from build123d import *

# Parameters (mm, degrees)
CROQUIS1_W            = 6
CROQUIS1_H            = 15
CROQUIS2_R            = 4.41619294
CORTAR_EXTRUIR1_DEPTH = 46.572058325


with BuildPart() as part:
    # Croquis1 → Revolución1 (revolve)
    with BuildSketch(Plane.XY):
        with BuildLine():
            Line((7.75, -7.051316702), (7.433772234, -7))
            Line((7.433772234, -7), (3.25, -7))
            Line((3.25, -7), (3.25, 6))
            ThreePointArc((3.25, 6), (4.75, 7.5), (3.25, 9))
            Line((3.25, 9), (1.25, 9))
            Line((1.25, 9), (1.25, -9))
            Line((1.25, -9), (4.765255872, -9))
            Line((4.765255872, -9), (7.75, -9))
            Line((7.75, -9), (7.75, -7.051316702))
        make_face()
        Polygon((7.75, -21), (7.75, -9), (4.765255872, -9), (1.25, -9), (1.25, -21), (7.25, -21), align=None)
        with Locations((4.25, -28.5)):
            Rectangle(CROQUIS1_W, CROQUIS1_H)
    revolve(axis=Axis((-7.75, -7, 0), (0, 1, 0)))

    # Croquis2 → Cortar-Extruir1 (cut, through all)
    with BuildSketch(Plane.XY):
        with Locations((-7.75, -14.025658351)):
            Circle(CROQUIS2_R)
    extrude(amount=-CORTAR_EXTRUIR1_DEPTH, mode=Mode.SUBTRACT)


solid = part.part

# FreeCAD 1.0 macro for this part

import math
import FreeCAD as App
import Part
import Sketcher
Q = App.Units.Quantity

doc = App.newDocument("Part")
body = doc.addObject("PartDesign::Body", "Body")

# Sketch on XY plane
sketch1 = body.newObject("Sketcher::SketchObject", "Sketch")
sketch1.AttachmentSupport = (doc.getObject("XY_Plane"), [""])
sketch1.MapMode = "FlatFace"
sketch1.addGeometry([
    Part.LineSegment(App.Vector(7.75, -7.05, 0), App.Vector(7.43, -7, 0)),  # 0
    Part.LineSegment(App.Vector(7.43, -7, 0), App.Vector(3.25, -7, 0)),  # 1
    Part.LineSegment(App.Vector(3.25, -7, 0), App.Vector(3.25, 6, 0)),  # 2
    Part.ArcOfCircle(Part.Circle(App.Vector(3.25, 7.5, 0), App.Vector(0, 0, 1), 1.5), math.radians(-90), math.radians(90)),  # 3
    Part.LineSegment(App.Vector(3.25, 9, 0), App.Vector(1.25, 9, 0)),  # 4
    Part.LineSegment(App.Vector(1.25, 9, 0), App.Vector(1.25, -36, 0)),  # 5
    Part.LineSegment(App.Vector(1.25, -36, 0), App.Vector(7.25, -36, 0)),  # 6
    Part.LineSegment(App.Vector(7.25, -36, 0), App.Vector(7.25, -21, 0)),  # 7
    Part.LineSegment(App.Vector(7.25, -21, 0), App.Vector(7.75, -21, 0)),  # 8
    Part.LineSegment(App.Vector(7.75, -21, 0), App.Vector(7.75, -7.05, 0)),  # 9
], False)
sketch1.addGeometry(Part.LineSegment(App.Vector(-7.75, -36, 0), App.Vector(-7.75, 9, 0)), True)  # axis
sketch1.addConstraint([
    Sketcher.Constraint("Coincident", 0, 2, 1, 1),
    Sketcher.Constraint("Coincident", 1, 2, 2, 1),
    Sketcher.Constraint("Coincident", 2, 2, 3, 1),
    Sketcher.Constraint("Tangent", 3, 2, 4, 1),
    Sketcher.Constraint("Coincident", 4, 2, 5, 1),
    Sketcher.Constraint("Coincident", 5, 2, 6, 1),
    Sketcher.Constraint("Coincident", 6, 2, 7, 1),
    Sketcher.Constraint("Coincident", 7, 2, 8, 1),
    Sketcher.Constraint("Coincident", 8, 2, 9, 1),
    Sketcher.Constraint("Coincident", 9, 2, 0, 1),
    Sketcher.Constraint("Horizontal", 1),
    Sketcher.Constraint("Vertical", 2),
    Sketcher.Constraint("Horizontal", 4),
    Sketcher.Constraint("Vertical", 5),
    Sketcher.Constraint("Horizontal", 6),
    Sketcher.Constraint("Vertical", 7),
    Sketcher.Constraint("Horizontal", 8),
    Sketcher.Constraint("Vertical", 9),
    Sketcher.Constraint("Vertical", 10),
    Sketcher.Constraint("Horizontal", 6, 2, 10, 1),
    Sketcher.Constraint("Horizontal", 4, 2, 10, 2),
    Sketcher.Constraint("Vertical", 3, 3, 1, 2),
    Sketcher.Constraint("Radius", 3, Q("1.5 mm")),
    Sketcher.Constraint("DistanceX", 4, 2, 4, 1, Q("2 mm")),
    Sketcher.Constraint("DistanceX", 6, 1, 6, 2, Q("6 mm")),
    Sketcher.Constraint("DistanceY", 2, 1, 2, 2, Q("13 mm")),
    Sketcher.Constraint("DistanceY", 5, 2, 5, 1, Q("45 mm")),
    Sketcher.Constraint("DistanceY", 7, 1, 7, 2, Q("15 mm")),
    Sketcher.Constraint("DistanceX", 8, 1, 8, 2, Q("0.5 mm")),
    Sketcher.Constraint("DistanceY", 0, 2, -1, 1, Q("7 mm")),
    Sketcher.Constraint("DistanceX", 10, 1, 5, 2, Q("9 mm")),
    Sketcher.Constraint("DistanceX", -1, 1, 3, 3, Q("3.25 mm")),
    Sketcher.Constraint("DistanceX", 1, 2, 1, 1, Q("4.183772 mm")),
    Sketcher.Constraint("DistanceY", 9, 1, 9, 2, Q("13.948683 mm")),
])
revolution = body.newObject("PartDesign::Revolution", "Revolution")
revolution.Profile = sketch1
revolution.ReferenceAxis = (sketch1, ["Axis0"])
revolution.Angle = 360

# Sketch on XY plane
sketch2 = body.newObject("Sketcher::SketchObject", "Sketch001")
sketch2.AttachmentSupport = (doc.getObject("XY_Plane"), [""])
sketch2.MapMode = "FlatFace"
sketch2.addGeometry(Part.Circle(App.Vector(-7.8, -14, 0), App.Vector(0, 0, 1), 4.4), False)
sketch2.addConstraint([
    Sketcher.Constraint("DistanceX", 0, 3, -1, 1, Q("7.75 mm")),
    Sketcher.Constraint("Diameter", 0, Q("8.832386 mm")),
    Sketcher.Constraint("DistanceY", 0, 3, -1, 1, Q("14.025658 mm")),
])
pocket1 = body.newObject("PartDesign::Pocket", "Pocket")
pocket1.Profile = sketch2
pocket1.Type = "ThroughAll"

doc.recompute()
